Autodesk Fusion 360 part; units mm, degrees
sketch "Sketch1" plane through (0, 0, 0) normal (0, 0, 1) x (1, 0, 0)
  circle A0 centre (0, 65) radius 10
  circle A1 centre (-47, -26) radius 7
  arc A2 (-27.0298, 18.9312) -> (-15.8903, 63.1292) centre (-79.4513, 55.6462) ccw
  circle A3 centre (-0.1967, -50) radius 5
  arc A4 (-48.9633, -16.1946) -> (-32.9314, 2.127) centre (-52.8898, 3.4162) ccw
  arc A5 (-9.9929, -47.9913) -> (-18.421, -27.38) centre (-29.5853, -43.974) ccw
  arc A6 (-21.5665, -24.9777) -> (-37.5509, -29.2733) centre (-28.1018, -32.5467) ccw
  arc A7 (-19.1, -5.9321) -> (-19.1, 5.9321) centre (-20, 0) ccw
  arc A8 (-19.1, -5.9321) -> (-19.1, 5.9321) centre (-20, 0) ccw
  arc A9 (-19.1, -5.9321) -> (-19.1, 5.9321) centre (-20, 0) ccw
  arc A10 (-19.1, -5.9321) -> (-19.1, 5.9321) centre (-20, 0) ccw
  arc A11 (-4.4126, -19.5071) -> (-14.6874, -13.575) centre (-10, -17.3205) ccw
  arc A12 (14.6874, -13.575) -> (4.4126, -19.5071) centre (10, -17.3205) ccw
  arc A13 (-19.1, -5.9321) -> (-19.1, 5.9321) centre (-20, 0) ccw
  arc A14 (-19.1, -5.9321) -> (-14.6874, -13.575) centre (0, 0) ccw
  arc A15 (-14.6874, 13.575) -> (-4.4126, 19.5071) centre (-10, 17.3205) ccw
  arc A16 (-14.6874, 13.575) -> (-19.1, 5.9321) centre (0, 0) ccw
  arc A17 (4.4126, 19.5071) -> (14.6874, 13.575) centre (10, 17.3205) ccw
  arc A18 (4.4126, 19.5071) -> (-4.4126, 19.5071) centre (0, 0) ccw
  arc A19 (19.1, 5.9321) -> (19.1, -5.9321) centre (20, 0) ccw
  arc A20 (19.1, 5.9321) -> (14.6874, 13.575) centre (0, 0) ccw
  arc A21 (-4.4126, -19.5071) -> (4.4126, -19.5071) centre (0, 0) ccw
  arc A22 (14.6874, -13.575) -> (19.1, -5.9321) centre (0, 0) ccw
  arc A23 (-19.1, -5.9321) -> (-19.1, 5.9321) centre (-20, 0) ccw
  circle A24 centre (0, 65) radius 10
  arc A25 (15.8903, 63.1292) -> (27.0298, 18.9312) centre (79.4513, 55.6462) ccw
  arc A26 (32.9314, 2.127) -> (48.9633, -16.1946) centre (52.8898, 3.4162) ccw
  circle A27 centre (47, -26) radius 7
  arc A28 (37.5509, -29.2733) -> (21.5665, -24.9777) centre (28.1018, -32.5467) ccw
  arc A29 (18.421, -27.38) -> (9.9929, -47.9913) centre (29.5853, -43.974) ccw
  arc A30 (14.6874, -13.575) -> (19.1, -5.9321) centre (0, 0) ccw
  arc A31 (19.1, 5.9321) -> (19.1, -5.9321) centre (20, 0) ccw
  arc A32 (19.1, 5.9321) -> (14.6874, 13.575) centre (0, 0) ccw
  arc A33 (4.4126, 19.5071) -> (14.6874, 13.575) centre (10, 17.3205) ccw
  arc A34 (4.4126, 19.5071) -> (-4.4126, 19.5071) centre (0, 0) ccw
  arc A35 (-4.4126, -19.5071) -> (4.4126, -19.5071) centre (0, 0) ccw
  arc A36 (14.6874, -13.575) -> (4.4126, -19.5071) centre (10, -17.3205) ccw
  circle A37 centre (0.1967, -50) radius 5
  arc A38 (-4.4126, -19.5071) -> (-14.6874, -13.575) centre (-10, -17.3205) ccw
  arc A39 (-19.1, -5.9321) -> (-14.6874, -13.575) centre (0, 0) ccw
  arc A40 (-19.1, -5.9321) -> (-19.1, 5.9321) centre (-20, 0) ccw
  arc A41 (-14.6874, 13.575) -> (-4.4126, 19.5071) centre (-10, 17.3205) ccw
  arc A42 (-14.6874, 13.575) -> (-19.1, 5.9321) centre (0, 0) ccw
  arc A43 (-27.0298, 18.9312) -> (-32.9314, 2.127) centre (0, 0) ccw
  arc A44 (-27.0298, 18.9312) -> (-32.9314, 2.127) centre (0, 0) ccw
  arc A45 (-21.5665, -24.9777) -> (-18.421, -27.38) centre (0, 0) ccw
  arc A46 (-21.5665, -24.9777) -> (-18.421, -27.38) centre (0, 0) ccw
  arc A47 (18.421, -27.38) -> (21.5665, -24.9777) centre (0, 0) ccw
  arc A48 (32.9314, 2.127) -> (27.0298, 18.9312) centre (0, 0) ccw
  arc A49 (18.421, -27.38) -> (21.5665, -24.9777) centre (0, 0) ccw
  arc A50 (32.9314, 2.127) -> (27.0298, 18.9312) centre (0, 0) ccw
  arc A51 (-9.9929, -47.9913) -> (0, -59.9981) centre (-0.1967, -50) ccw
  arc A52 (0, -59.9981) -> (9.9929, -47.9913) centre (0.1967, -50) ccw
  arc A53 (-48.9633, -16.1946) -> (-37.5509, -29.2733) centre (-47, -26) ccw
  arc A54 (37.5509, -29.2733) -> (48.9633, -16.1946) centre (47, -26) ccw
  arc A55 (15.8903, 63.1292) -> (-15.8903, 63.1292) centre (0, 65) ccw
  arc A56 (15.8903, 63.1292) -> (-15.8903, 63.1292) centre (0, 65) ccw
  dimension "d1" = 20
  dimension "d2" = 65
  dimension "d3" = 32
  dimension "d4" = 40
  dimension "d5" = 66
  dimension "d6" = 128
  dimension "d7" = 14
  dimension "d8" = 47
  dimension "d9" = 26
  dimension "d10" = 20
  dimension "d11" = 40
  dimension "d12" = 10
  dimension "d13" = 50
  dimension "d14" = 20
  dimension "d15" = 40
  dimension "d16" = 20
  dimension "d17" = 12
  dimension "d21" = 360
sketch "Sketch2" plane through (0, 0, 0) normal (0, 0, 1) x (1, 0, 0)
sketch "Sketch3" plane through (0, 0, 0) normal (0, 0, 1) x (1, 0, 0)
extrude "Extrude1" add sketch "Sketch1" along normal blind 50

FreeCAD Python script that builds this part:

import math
import FreeCAD as App
import Part
import Sketcher
Q = App.Units.Quantity

doc = App.newDocument("Part")
body = doc.addObject("PartDesign::Body", "Body")

sketch1 = body.newObject("Sketcher::SketchObject", "Sketch")
sketch1.AttachmentSupport = (doc.getObject("XY_Plane"), [""])
sketch1.MapMode = "FlatFace"
sketch1.addGeometry([
    Part.ArcOfCircle(Part.Circle(App.Vector(-79.5, 55.6, 0), App.Vector(0, 0, 1), 64), math.radians(-35), math.radians(7)),
    Part.ArcOfCircle(Part.Circle(App.Vector(0, 0, 0), App.Vector(0, 0, 1), 33), math.radians(145), math.radians(176)),
    Part.ArcOfCircle(Part.Circle(App.Vector(-52.9, 3.4, 0), App.Vector(0, 0, 1), 20), math.radians(-79), math.radians(-4)),
    Part.ArcOfCircle(Part.Circle(App.Vector(-47, -26, 0), App.Vector(0, 0, 1), 10), math.radians(101), math.radians(341)),
    Part.ArcOfCircle(Part.Circle(App.Vector(-28.1, -32.5, 0), App.Vector(0, 0, 1), 10), math.radians(49), math.radians(161)),
    Part.ArcOfCircle(Part.Circle(App.Vector(0, 0, 0), App.Vector(0, 0, 1), 33), math.radians(-130.81), math.radians(-123.93)),
    Part.ArcOfCircle(Part.Circle(App.Vector(-29.6, -44, 0), App.Vector(0, 0, 1), 20), math.radians(-12), math.radians(56)),
    Part.ArcOfCircle(Part.Circle(App.Vector(-0.2, -50, 0), App.Vector(0, 0, 1), 10), math.radians(168), math.radians(271)),
    Part.ArcOfCircle(Part.Circle(App.Vector(0.2, -50, 0), App.Vector(0, 0, 1), 10), math.radians(-91), math.radians(12)),
    Part.ArcOfCircle(Part.Circle(App.Vector(29.6, -44, 0), App.Vector(0, 0, 1), 20), math.radians(124), math.radians(192)),
    Part.ArcOfCircle(Part.Circle(App.Vector(0, 0, 0), App.Vector(0, 0, 1), 33), math.radians(-56.07), math.radians(-49.19)),
    Part.ArcOfCircle(Part.Circle(App.Vector(28.1, -32.5, 0), App.Vector(0, 0, 1), 10), math.radians(19), math.radians(131)),
    Part.ArcOfCircle(Part.Circle(App.Vector(47, -26, 0), App.Vector(0, 0, 1), 10), math.radians(-161), math.radians(79)),
    Part.ArcOfCircle(Part.Circle(App.Vector(52.9, 3.4, 0), App.Vector(0, 0, 1), 20), math.radians(-176), math.radians(-101)),
    Part.ArcOfCircle(Part.Circle(App.Vector(0, 0, 0), App.Vector(0, 0, 1), 33), math.radians(4), math.radians(35)),
    Part.ArcOfCircle(Part.Circle(App.Vector(79.5, 55.6, 0), App.Vector(0, 0, 1), 64), math.radians(173), math.radians(215)),
    Part.ArcOfCircle(Part.Circle(App.Vector(0, 65, 0), App.Vector(0, 0, 1), 16), math.radians(-7), math.radians(187)),
    Part.Circle(App.Vector(-47, -26, 0), App.Vector(0, 0, 1), 7),
    Part.ArcOfCircle(Part.Circle(App.Vector(-0.2, -50, 0), App.Vector(0, 0, 1), 5), math.radians(88), math.radians(272)),
    Part.ArcOfCircle(Part.Circle(App.Vector(0.2, -50, 0), App.Vector(0, 0, 1), 5), math.radians(-92), math.radians(92)),
    Part.Circle(App.Vector(47, -26, 0), App.Vector(0, 0, 1), 7),
    Part.ArcOfCircle(Part.Circle(App.Vector(0, 0, 0), App.Vector(0, 0, 1), 20), math.radians(-163), math.radians(-137)),
    Part.ArcOfCircle(Part.Circle(App.Vector(-20, 0, 0), App.Vector(0, 0, 1), 6), math.radians(-81), math.radians(81)),
    Part.ArcOfCircle(Part.Circle(App.Vector(0, 0, 0), App.Vector(0, 0, 1), 20), math.radians(137), math.radians(163)),
    Part.ArcOfCircle(Part.Circle(App.Vector(-10, 17.3, 0), App.Vector(0, 0, 1), 6), math.radians(-141), math.radians(21)),
    Part.ArcOfCircle(Part.Circle(App.Vector(0, 0, 0), App.Vector(0, 0, 1), 20), math.radians(77), math.radians(103)),
    Part.ArcOfCircle(Part.Circle(App.Vector(10, 17.3, 0), App.Vector(0, 0, 1), 6), math.radians(159), math.radians(321)),
    Part.ArcOfCircle(Part.Circle(App.Vector(0, 0, 0), App.Vector(0, 0, 1), 20), math.radians(17), math.radians(43)),
    Part.ArcOfCircle(Part.Circle(App.Vector(20, 0, 0), App.Vector(0, 0, 1), 6), math.radians(99), math.radians(261)),
    Part.ArcOfCircle(Part.Circle(App.Vector(0, 0, 0), App.Vector(0, 0, 1), 20), math.radians(-43), math.radians(-17)),
    Part.ArcOfCircle(Part.Circle(App.Vector(10, -17.3, 0), App.Vector(0, 0, 1), 6), math.radians(39), math.radians(201)),
    Part.ArcOfCircle(Part.Circle(App.Vector(0, 0, 0), App.Vector(0, 0, 1), 20), math.radians(-103), math.radians(-77)),
    Part.ArcOfCircle(Part.Circle(App.Vector(-10, -17.3, 0), App.Vector(0, 0, 1), 6), math.radians(-21), math.radians(141)),
    Part.Circle(App.Vector(0, 65, 0), App.Vector(0, 0, 1), 10),
], False)
sketch1.addConstraint([
    Sketcher.Constraint("Tangent", 0, 1, 1, 1),
    Sketcher.Constraint("Tangent", 1, 2, 2, 2),
    Sketcher.Constraint("Tangent", 2, 1, 3, 1),
    Sketcher.Constraint("Tangent", 3, 2, 4, 2),
    Sketcher.Constraint("Tangent", 4, 1, 5, 1),
    Sketcher.Constraint("Tangent", 5, 2, 6, 2),
    Sketcher.Constraint("Tangent", 6, 1, 7, 1),
    Sketcher.Constraint("Coincident", 7, 2, 8, 1),
    Sketcher.Constraint("Tangent", 8, 2, 9, 2),
    Sketcher.Constraint("Tangent", 9, 1, 10, 1),
    Sketcher.Constraint("Tangent", 10, 2, 11, 2),
    Sketcher.Constraint("Tangent", 11, 1, 12, 1),
    Sketcher.Constraint("Tangent", 12, 2, 13, 2),
    Sketcher.Constraint("Tangent", 13, 1, 14, 1),
    Sketcher.Constraint("Tangent", 14, 2, 15, 2),
    Sketcher.Constraint("Tangent", 15, 1, 16, 1),
    Sketcher.Constraint("Tangent", 16, 2, 0, 2),
    Sketcher.Constraint("Coincident", 18, 1, 19, 2),
    Sketcher.Constraint("Coincident", 19, 1, 18, 2),
    Sketcher.Constraint("Coincident", 21, 1, 22, 1),
    Sketcher.Constraint("Coincident", 22, 2, 23, 2),
    Sketcher.Constraint("Coincident", 23, 1, 24, 1),
    Sketcher.Constraint("Coincident", 24, 2, 25, 2),
    Sketcher.Constraint("Coincident", 25, 1, 26, 1),
    Sketcher.Constraint("Coincident", 26, 2, 27, 2),
    Sketcher.Constraint("Coincident", 27, 1, 28, 1),
    Sketcher.Constraint("Coincident", 28, 2, 29, 2),
    Sketcher.Constraint("Coincident", 29, 1, 30, 1),
    Sketcher.Constraint("Coincident", 30, 2, 31, 2),
    Sketcher.Constraint("Coincident", 31, 1, 32, 1),
    Sketcher.Constraint("Coincident", 32, 2, 21, 2),
    Sketcher.Constraint("Coincident", 1, 3, -1, 1),
    Sketcher.Constraint("Coincident", 14, 3, -1, 1),
    Sketcher.Constraint("Coincident", 21, 3, -1, 1),
    Sketcher.Constraint("Coincident", 23, 3, -1, 1),
    Sketcher.Constraint("Coincident", 25, 3, -1, 1),
    Sketcher.Constraint("Coincident", 27, 3, -1, 1),
    Sketcher.Constraint("Coincident", 29, 3, -1, 1),
    Sketcher.Constraint("Coincident", 31, 3, -1, 1),
    Sketcher.Constraint("Coincident", 17, 3, 3, 3),
    Sketcher.Constraint("Coincident", 18, 3, 7, 3),
    Sketcher.Constraint("Coincident", 19, 3, 8, 3),
    Sketcher.Constraint("Coincident", 20, 3, 12, 3),
    Sketcher.Constraint("Coincident", 33, 3, 16, 3),
    Sketcher.Constraint("Equal", 3, 4),
    Sketcher.Constraint("Equal", 2, 6),
    Sketcher.Constraint("Equal", 4, 7),
    Sketcher.Constraint("Equal", 7, 8),
    Sketcher.Constraint("Equal", 6, 9),
    Sketcher.Constraint("Equal", 8, 11),
    Sketcher.Constraint("Equal", 11, 12),
    Sketcher.Constraint("Equal", 9, 13),
    Sketcher.Constraint("Equal", 1, 14),
    Sketcher.Constraint("Equal", 0, 15),
    Sketcher.Constraint("Equal", 18, 19),
    Sketcher.Constraint("Equal", 17, 20),
    Sketcher.Constraint("Equal", 13, 21),
    Sketcher.Constraint("Equal", 21, 23),
    Sketcher.Constraint("Equal", 22, 24),
    Sketcher.Constraint("Equal", 23, 25),
    Sketcher.Constraint("Equal", 24, 26),
    Sketcher.Constraint("Equal", 25, 27),
    Sketcher.Constraint("Equal", 26, 28),
    Sketcher.Constraint("Equal", 27, 29),
    Sketcher.Constraint("Equal", 28, 30),
    Sketcher.Constraint("Equal", 29, 31),
    Sketcher.Constraint("Equal", 30, 32),
    Sketcher.Constraint("Equal", 12, 33),
    Sketcher.Constraint("Symmetric", 22, 3, 28, 3, -1, 1),
    Sketcher.Constraint("Symmetric", 24, 3, 30, 3, -1, 1),
    Sketcher.Constraint("Symmetric", 26, 3, 32, 3, -1, 1),
    Sketcher.Constraint("Symmetric", 7, 3, 8, 3, -2),
    Sketcher.Constraint("Symmetric", 4, 3, 11, 3, -2),
    Sketcher.Constraint("Symmetric", 24, 3, 26, 3, -2),
    Sketcher.Constraint("PointOnObject", 16, 3, -2),
    Sketcher.Constraint("PointOnObject", 22, 3, -1),
    Sketcher.Constraint("Horizontal", 6, 3, 9, 3),
    Sketcher.Constraint("Horizontal", 3, 3, 12, 3),
    Sketcher.Constraint("Diameter", 17, Q("14 mm")),
    Sketcher.Constraint("Diameter", 33, Q("20 mm")),
    Sketcher.Constraint("Radius", 0, Q("64 mm")),
    Sketcher.Constraint("Radius", 1, Q("33 mm")),
    Sketcher.Constraint("Radius", 2, Q("20 mm")),
    Sketcher.Constraint("Radius", 16, Q("16 mm")),
    Sketcher.Constraint("Radius", 18, Q("5 mm")),
    Sketcher.Constraint("Radius", 22, Q("6 mm")),
    Sketcher.Constraint("DistanceX", 3, 3, -1, 1, Q("47 mm")),
    Sketcher.Constraint("DistanceY", 3, 3, -1, 1, Q("26 mm")),
    Sketcher.Constraint("DistanceY", 7, 3, -1, 1, Q("50 mm")),
    Sketcher.Constraint("DistanceY", -1, 1, 16, 3, Q("65 mm")),
    Sketcher.Constraint("DistanceX", 22, 3, -1, 1, Q("20 mm")),
    Sketcher.Constraint("DistanceX", 24, 3, -1, 1, Q("10 mm")),
    Sketcher.Constraint("Radius", 5, Q("32.9925 mm")),
    Sketcher.Constraint("Radius", 10, Q("33.0075 mm")),
    Sketcher.Constraint("DistanceY", 5, 2, -1, 1, Q("27.38 mm")),
    Sketcher.Constraint("DistanceY", 6, 3, -1, 1, Q("43.974 mm")),
    Sketcher.Constraint("DistanceX", 5, 2, -1, 1, Q("18.421 mm")),
    Sketcher.Constraint("DistanceY", -1, 1, 23, 1, Q("13.575 mm")),
])
pad1 = body.newObject("PartDesign::Pad", "Pad")
pad1.Profile = sketch1
pad1.Length = 50

doc.recompute()
